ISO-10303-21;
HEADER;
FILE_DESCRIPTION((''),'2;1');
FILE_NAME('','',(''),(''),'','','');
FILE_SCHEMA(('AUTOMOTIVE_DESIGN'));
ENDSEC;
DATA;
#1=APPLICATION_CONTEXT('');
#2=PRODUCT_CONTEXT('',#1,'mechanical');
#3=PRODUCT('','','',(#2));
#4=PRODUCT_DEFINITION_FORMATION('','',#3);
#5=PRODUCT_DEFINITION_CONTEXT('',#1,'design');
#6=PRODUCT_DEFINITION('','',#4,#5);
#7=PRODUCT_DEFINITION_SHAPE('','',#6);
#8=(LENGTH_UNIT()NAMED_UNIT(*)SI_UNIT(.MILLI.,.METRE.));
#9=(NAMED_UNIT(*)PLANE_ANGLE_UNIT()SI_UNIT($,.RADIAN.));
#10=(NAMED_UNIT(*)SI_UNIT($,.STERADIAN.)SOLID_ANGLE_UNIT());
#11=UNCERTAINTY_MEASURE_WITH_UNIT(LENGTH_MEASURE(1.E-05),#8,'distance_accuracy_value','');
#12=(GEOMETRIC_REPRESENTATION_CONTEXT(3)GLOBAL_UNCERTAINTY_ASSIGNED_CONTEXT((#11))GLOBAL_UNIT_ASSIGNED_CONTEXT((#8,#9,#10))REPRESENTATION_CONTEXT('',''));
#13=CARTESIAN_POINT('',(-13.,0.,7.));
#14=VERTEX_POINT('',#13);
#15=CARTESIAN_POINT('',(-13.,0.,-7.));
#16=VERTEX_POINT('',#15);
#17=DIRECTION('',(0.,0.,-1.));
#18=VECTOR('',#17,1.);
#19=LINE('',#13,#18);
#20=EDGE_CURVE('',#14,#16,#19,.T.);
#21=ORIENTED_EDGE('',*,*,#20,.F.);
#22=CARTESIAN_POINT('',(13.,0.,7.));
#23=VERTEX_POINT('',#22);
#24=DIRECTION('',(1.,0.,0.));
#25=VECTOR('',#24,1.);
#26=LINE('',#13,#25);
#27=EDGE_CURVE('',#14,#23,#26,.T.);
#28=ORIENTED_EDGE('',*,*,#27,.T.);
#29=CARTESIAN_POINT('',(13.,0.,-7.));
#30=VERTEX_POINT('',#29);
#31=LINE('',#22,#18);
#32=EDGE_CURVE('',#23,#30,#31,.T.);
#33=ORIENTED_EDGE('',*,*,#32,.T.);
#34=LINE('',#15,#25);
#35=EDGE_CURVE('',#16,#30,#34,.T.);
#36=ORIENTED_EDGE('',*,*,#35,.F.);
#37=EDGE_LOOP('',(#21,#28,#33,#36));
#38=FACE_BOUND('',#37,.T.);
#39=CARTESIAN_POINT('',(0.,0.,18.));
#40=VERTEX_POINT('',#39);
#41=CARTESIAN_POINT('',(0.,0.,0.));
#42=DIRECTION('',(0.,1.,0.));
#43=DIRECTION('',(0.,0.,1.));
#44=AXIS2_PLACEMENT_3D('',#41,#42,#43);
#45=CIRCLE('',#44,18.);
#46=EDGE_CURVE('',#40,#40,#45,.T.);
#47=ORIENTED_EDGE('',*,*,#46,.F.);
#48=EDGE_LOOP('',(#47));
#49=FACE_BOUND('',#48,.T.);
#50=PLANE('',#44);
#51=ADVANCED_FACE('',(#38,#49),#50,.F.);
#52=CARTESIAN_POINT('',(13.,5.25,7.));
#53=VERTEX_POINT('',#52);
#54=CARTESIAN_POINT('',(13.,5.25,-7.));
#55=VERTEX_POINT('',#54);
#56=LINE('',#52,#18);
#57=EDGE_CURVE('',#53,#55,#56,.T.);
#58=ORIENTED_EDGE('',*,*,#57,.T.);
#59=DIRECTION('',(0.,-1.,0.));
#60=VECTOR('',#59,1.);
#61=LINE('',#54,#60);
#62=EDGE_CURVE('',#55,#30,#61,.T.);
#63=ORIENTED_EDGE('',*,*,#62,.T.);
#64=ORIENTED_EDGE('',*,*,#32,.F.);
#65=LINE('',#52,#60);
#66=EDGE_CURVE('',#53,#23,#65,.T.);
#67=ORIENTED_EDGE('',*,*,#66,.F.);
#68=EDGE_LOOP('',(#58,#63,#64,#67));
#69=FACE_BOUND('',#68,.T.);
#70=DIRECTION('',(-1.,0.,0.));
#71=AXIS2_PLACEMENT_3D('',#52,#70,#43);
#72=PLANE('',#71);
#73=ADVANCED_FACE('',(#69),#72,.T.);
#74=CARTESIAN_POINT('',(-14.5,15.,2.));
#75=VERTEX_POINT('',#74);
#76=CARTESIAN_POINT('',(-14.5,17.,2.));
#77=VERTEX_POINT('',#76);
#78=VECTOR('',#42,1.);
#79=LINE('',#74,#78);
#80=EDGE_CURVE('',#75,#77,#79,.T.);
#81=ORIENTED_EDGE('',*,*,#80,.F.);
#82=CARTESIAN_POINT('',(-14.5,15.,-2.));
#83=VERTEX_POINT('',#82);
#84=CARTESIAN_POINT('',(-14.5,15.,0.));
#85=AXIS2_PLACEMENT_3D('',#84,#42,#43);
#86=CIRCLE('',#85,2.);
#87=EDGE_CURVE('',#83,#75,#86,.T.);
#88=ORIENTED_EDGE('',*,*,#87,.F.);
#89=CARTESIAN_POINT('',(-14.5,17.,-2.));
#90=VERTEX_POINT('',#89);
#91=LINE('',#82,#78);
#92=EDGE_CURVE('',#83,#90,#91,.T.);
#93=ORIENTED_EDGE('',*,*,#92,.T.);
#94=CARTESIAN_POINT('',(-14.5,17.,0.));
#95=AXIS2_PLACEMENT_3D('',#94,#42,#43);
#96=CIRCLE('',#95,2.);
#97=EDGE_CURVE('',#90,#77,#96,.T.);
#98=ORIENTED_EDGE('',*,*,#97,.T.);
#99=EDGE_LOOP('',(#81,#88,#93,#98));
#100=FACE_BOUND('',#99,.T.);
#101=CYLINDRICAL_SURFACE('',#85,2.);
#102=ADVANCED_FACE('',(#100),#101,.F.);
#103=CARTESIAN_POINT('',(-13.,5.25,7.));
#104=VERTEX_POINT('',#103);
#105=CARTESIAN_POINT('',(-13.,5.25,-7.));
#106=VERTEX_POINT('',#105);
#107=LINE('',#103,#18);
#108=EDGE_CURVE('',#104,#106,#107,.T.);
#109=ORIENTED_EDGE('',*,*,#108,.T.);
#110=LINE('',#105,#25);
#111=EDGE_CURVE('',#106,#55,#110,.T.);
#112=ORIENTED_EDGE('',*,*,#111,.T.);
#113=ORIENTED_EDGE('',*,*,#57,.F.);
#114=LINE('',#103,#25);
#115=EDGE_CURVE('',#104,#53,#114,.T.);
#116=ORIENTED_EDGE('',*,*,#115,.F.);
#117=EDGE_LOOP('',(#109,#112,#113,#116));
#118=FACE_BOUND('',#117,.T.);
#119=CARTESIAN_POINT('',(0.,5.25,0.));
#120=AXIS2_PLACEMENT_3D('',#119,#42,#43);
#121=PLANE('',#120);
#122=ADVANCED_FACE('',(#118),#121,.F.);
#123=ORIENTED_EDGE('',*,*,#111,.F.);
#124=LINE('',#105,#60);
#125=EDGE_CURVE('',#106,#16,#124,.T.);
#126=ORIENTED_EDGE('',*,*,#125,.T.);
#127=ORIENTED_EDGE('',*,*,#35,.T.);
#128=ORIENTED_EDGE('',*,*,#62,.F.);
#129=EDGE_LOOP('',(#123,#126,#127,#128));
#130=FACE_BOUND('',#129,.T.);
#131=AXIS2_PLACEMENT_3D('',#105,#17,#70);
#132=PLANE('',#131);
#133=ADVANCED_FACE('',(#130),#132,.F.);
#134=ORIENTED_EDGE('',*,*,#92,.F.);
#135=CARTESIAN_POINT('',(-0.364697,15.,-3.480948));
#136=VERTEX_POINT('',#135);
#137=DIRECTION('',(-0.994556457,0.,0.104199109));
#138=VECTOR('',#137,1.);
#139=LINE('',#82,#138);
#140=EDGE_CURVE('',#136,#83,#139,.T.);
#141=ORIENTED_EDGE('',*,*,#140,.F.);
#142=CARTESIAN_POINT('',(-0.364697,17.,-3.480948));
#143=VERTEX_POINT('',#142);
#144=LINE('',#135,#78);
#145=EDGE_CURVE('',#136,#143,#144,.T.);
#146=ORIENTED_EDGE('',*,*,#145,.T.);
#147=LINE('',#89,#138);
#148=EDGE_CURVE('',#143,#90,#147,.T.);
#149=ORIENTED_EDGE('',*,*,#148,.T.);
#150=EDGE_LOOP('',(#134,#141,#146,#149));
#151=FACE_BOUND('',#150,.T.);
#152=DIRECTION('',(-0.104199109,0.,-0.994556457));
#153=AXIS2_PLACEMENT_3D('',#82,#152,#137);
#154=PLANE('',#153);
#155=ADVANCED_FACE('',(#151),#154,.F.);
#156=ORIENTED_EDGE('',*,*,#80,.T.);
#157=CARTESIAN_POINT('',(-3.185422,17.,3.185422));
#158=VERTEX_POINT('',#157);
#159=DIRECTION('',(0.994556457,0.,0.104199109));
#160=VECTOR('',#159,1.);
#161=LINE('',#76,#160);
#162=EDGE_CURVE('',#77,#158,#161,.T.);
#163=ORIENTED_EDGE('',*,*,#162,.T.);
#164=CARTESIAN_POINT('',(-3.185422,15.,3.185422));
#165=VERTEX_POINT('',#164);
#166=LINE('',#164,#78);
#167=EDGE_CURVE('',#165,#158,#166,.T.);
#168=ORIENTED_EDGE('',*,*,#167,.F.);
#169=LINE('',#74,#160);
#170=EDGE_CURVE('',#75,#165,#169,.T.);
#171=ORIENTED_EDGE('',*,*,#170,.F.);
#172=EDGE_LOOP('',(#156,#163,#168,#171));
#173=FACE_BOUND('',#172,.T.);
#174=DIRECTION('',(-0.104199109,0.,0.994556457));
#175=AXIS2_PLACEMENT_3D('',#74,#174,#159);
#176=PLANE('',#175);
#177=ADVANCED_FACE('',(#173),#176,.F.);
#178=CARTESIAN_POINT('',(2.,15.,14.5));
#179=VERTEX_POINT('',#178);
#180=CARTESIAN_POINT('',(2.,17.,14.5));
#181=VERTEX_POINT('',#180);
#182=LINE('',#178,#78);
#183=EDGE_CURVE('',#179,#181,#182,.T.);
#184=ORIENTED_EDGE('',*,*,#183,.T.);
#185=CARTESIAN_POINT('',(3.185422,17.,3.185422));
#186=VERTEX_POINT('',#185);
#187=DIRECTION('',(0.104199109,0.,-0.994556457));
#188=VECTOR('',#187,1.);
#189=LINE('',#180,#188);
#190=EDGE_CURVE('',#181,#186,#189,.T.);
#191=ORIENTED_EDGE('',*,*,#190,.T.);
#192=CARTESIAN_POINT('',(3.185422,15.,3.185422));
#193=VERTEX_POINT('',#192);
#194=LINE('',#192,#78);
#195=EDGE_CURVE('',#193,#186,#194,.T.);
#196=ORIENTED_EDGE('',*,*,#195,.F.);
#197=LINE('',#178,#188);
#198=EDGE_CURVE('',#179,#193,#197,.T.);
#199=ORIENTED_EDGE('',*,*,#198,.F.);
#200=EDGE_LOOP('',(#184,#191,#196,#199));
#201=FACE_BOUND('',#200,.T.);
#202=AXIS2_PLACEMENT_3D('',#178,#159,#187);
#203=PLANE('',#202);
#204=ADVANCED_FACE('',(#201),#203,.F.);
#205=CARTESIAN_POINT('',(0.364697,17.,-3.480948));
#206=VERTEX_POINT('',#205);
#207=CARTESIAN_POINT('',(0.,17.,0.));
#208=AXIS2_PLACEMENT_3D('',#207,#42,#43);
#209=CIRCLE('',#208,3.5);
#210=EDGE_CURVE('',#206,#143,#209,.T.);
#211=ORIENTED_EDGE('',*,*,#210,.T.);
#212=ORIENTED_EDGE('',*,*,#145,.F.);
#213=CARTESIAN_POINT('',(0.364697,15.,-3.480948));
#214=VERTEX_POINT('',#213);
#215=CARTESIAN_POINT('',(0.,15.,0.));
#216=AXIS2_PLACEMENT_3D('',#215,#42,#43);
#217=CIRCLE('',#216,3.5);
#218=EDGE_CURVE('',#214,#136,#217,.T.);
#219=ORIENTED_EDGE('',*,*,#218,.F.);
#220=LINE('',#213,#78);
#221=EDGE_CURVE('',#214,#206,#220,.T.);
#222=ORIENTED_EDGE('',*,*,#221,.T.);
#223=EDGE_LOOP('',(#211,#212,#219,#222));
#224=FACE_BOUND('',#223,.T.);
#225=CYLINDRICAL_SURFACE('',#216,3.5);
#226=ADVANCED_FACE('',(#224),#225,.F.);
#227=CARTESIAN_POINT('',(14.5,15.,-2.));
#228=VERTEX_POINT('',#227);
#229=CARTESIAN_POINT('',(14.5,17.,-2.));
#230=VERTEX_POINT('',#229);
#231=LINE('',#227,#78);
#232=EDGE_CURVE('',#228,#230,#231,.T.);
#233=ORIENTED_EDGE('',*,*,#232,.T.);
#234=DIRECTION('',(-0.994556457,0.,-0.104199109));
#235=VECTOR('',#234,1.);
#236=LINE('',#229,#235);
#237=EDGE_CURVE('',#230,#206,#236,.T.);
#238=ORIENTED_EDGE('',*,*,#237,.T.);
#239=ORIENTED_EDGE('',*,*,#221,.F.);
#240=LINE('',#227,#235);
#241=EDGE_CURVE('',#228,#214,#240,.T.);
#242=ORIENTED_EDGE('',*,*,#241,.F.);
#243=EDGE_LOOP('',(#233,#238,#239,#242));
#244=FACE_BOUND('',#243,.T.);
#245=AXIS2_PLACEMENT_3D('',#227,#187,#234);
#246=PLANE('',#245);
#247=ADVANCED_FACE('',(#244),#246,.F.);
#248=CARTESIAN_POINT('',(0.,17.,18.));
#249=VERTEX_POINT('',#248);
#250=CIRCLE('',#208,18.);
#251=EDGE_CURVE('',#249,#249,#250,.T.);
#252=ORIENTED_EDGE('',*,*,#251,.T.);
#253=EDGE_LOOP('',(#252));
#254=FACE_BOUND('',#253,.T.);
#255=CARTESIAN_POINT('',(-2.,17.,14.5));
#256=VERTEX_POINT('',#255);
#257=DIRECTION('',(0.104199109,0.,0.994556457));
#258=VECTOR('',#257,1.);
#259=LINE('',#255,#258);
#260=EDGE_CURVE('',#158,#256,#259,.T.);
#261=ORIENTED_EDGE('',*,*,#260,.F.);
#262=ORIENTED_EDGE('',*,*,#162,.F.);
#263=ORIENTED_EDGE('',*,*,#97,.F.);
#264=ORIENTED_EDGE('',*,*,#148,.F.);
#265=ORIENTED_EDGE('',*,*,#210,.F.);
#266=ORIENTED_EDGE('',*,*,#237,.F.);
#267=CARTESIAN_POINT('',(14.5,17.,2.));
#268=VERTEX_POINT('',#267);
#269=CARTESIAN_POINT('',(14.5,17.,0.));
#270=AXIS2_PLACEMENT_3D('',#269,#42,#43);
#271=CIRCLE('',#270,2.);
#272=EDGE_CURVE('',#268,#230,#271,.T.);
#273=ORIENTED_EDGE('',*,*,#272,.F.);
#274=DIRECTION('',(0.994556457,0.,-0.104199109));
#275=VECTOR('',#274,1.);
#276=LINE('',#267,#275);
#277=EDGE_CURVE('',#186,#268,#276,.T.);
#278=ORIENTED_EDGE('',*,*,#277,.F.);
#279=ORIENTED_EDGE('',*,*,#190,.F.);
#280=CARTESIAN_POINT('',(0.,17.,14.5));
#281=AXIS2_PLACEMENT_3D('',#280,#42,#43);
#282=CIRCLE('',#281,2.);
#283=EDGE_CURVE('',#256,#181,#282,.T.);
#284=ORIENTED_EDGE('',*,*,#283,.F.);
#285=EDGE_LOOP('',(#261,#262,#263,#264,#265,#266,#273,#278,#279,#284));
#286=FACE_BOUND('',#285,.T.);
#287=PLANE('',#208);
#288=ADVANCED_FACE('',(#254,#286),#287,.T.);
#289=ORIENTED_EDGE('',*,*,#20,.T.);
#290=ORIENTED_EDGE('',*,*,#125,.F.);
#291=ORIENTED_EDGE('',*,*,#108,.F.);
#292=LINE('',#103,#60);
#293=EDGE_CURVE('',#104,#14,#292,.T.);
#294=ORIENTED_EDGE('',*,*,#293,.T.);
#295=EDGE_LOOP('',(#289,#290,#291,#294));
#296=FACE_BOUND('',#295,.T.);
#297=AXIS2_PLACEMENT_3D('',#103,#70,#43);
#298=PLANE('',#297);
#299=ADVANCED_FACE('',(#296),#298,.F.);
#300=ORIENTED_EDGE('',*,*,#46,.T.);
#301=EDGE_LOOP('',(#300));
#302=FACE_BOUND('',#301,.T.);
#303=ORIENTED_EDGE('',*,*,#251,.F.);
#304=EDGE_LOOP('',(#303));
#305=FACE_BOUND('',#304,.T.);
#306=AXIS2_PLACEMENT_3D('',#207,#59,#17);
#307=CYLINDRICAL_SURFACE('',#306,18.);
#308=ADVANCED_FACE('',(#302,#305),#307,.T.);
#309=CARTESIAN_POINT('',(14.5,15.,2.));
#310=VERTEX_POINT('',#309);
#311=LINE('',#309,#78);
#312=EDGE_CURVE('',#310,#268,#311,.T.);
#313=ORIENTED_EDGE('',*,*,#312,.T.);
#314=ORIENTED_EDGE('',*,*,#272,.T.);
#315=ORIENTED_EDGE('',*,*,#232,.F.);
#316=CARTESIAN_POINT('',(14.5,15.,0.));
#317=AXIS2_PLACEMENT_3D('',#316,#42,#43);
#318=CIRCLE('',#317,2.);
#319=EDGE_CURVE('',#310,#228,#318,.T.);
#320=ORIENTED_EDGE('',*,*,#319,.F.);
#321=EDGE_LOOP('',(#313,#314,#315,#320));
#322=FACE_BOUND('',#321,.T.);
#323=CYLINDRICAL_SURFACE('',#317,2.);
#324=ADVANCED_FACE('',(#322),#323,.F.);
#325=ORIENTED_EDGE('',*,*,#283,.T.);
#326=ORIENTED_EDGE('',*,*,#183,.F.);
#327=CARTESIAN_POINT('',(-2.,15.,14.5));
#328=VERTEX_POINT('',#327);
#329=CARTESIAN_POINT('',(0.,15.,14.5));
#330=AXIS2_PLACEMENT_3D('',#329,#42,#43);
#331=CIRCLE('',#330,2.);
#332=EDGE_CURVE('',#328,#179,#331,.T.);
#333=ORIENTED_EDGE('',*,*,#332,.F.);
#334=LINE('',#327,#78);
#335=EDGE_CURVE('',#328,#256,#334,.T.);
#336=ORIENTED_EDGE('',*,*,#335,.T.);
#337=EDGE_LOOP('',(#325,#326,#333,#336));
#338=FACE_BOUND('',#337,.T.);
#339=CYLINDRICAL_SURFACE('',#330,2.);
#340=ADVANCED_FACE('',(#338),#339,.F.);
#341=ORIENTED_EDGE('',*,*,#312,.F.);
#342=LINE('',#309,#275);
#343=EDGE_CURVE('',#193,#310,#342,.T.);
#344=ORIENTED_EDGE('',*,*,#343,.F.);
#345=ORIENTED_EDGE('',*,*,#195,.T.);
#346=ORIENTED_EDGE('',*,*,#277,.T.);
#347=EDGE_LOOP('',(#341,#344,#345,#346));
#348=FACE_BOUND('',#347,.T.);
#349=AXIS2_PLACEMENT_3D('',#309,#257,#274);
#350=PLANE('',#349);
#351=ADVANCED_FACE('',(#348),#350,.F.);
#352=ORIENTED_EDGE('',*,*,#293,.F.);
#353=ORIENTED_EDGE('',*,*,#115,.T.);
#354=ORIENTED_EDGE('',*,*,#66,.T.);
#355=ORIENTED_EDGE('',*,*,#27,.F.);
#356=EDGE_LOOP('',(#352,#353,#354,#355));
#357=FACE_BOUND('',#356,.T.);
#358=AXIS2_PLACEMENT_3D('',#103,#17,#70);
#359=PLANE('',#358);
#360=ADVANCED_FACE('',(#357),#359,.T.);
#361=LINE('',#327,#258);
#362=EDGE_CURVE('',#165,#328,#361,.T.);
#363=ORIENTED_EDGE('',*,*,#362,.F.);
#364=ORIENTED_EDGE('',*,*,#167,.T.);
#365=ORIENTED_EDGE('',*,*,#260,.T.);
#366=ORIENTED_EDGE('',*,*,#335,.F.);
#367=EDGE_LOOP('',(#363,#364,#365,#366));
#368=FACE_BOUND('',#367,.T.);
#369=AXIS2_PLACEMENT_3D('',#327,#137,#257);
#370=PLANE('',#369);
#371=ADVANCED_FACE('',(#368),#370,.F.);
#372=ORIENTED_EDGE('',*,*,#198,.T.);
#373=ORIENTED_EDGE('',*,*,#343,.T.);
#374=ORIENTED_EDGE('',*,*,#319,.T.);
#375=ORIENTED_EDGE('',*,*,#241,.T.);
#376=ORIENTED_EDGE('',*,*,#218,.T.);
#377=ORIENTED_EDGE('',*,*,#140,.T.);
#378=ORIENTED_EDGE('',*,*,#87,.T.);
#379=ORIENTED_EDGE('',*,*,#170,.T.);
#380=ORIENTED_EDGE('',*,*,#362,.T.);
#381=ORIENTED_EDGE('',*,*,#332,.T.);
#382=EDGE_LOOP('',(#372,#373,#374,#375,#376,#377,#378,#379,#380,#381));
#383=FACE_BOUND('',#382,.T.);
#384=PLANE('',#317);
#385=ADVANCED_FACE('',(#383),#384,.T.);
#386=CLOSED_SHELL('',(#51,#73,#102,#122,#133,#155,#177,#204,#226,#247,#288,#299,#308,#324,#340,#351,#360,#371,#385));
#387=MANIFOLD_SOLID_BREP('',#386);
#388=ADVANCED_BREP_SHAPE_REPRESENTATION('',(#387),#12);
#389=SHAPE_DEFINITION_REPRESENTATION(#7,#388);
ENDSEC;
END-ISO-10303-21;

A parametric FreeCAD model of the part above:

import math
import FreeCAD as App
import Part
import Sketcher

V = App.Vector
Q = App.Units.Quantity


def add_polygon(sketch, points):
    """Adds a closed chain of lines whose ends are joined by coincident constraints."""
    first, n = sketch.GeometryCount, len(points)
    for a, b in zip(points, points[1:] + points[:1]):
        sketch.addGeometry(Part.LineSegment(App.Vector(*a, 0), App.Vector(*b, 0)), False)
    for i in range(n):
        sketch.addConstraint(Sketcher.Constraint("Coincident", first + i, 2, first + (i + 1) % n, 1))

doc = App.newDocument("Part")
body = doc.addObject("PartDesign::Body", "Body")

sketch1 = doc.addObject("Sketcher::SketchObject", "Sketch")
body.addObject(sketch1)
sketch1.AttachmentSupport = (doc.XZ_Plane, [""])
sketch1.MapMode = "FlatFace"
sketch1.addGeometry(Part.Circle(V(0, 0, 0), V(0, 0, 1), 18), False)
sketch1.addConstraint([
    Sketcher.Constraint("Coincident", 0, 3, -1, 1),
    Sketcher.Constraint("Diameter", 0, Q("36 mm")),
])
pad1 = doc.addObject("PartDesign::Pad", "Pad")
body.addObject(pad1)
pad1.Profile = sketch1
pad1.Length = 17
pad1.Reversed = True

sketch2 = doc.addObject("Sketcher::SketchObject", "Sketch001")
body.addObject(sketch2)
sketch2.AttachmentSupport = (doc.XZ_Plane, [""])
sketch2.MapMode = "FlatFace"
add_polygon(sketch2, [(-13, 7), (-13, -7), (13, -7), (13, 7)])
sketch2.addConstraint([
    Sketcher.Constraint("Vertical", 0),
    Sketcher.Constraint("Horizontal", 1),
    Sketcher.Constraint("Vertical", 2),
    Sketcher.Constraint("Horizontal", 3),
    Sketcher.Constraint("Symmetric", 0, 2, 2, 2, -1, 1),
    Sketcher.Constraint("DistanceX", 1, 1, 1, 2, Q("26 mm")),
    Sketcher.Constraint("DistanceY", 0, 2, 0, 1, Q("14 mm")),
])
pocket1 = doc.addObject("PartDesign::Pocket", "Pocket")
body.addObject(pocket1)
pocket1.Profile = sketch2
pocket1.Length = 5.25

sketch3 = doc.addObject("Sketcher::SketchObject", "Sketch002")
body.addObject(sketch3)
sketch3.AttachmentSupport = (doc.XZ_Plane, [""])
sketch3.MapMode = "FlatFace"
sketch3.AttachmentOffset = App.Placement(V(0, 0, -17), App.Rotation())
sketch3.addGeometry([
    Part.LineSegment(V(14.5, -2, 0), V(0.4, -3.5, 0)),
    Part.ArcOfCircle(Part.Circle(V(0, 0, 0), V(0, 0, 1), 3.5), math.radians(-95.98), math.radians(-84.02)),
    Part.LineSegment(V(-0.4, -3.5, 0), V(-14.5, -2, 0)),
    Part.ArcOfCircle(Part.Circle(V(-14.5, 0, 0), V(0, 0, 1), 2), math.radians(90), math.radians(270)),
    Part.LineSegment(V(-14.5, 2, 0), V(-3.2, 3.2, 0)),
    Part.LineSegment(V(-3.2, 3.2, 0), V(-2, 14.5, 0)),
    Part.ArcOfCircle(Part.Circle(V(0, 14.5, 0), V(0, 0, 1), 2), math.radians(0), math.radians(180)),
    Part.LineSegment(V(2, 14.5, 0), V(3.2, 3.2, 0)),
    Part.LineSegment(V(3.2, 3.2, 0), V(14.5, 2, 0)),
    Part.ArcOfCircle(Part.Circle(V(14.5, 0, 0), V(0, 0, 1), 2), math.radians(-90), math.radians(90)),
], False)
sketch3.addConstraint([
    Sketcher.Constraint("Tangent", 0, 2, 1, 2),
    Sketcher.Constraint("Tangent", 1, 1, 2, 1),
    Sketcher.Constraint("Coincident", 2, 2, 3, 2),
    Sketcher.Constraint("Coincident", 3, 1, 4, 1),
    Sketcher.Constraint("Coincident", 4, 2, 5, 1),
    Sketcher.Constraint("Coincident", 5, 2, 6, 2),
    Sketcher.Constraint("Coincident", 6, 1, 7, 1),
    Sketcher.Constraint("Coincident", 7, 2, 8, 1),
    Sketcher.Constraint("Coincident", 8, 2, 9, 2),
    Sketcher.Constraint("Coincident", 9, 1, 0, 1),
    Sketcher.Constraint("Coincident", 1, 3, -1, 1),
    Sketcher.Constraint("Equal", 3, 6),
    Sketcher.Constraint("Equal", 6, 9),
    Sketcher.Constraint("Symmetric", 3, 3, 9, 3, -1, 1),
    Sketcher.Constraint("Symmetric", 5, 2, 6, 1, -2),
    Sketcher.Constraint("Symmetric", 4, 2, 7, 2, -2),
    Sketcher.Constraint("Symmetric", 3, 1, 8, 2, -2),
    Sketcher.Constraint("Parallel", 0, 4),
    Sketcher.Constraint("Perpendicular", 2, 5),
    Sketcher.Constraint("Perpendicular", 4, 7),
    Sketcher.Constraint("Horizontal", 6, 3, 5, 2),
    Sketcher.Constraint("Vertical", 3, 3, 2, 2),
    Sketcher.Constraint("Vertical", 2, 2, 3, 1),
    Sketcher.Constraint("Equal", 4, 5),
    Sketcher.Constraint("Radius", 3, Q("2 mm")),
    Sketcher.Constraint("Radius", 1, Q("3.5 mm")),
    Sketcher.Constraint("DistanceX", 3, 3, 9, 3, Q("29 mm")),
])
pocket2 = doc.addObject("PartDesign::Pocket", "Pocket001")
body.addObject(pocket2)
pocket2.Profile = sketch3
pocket2.Length = 2
pocket2.Reversed = True

doc.recompute()
